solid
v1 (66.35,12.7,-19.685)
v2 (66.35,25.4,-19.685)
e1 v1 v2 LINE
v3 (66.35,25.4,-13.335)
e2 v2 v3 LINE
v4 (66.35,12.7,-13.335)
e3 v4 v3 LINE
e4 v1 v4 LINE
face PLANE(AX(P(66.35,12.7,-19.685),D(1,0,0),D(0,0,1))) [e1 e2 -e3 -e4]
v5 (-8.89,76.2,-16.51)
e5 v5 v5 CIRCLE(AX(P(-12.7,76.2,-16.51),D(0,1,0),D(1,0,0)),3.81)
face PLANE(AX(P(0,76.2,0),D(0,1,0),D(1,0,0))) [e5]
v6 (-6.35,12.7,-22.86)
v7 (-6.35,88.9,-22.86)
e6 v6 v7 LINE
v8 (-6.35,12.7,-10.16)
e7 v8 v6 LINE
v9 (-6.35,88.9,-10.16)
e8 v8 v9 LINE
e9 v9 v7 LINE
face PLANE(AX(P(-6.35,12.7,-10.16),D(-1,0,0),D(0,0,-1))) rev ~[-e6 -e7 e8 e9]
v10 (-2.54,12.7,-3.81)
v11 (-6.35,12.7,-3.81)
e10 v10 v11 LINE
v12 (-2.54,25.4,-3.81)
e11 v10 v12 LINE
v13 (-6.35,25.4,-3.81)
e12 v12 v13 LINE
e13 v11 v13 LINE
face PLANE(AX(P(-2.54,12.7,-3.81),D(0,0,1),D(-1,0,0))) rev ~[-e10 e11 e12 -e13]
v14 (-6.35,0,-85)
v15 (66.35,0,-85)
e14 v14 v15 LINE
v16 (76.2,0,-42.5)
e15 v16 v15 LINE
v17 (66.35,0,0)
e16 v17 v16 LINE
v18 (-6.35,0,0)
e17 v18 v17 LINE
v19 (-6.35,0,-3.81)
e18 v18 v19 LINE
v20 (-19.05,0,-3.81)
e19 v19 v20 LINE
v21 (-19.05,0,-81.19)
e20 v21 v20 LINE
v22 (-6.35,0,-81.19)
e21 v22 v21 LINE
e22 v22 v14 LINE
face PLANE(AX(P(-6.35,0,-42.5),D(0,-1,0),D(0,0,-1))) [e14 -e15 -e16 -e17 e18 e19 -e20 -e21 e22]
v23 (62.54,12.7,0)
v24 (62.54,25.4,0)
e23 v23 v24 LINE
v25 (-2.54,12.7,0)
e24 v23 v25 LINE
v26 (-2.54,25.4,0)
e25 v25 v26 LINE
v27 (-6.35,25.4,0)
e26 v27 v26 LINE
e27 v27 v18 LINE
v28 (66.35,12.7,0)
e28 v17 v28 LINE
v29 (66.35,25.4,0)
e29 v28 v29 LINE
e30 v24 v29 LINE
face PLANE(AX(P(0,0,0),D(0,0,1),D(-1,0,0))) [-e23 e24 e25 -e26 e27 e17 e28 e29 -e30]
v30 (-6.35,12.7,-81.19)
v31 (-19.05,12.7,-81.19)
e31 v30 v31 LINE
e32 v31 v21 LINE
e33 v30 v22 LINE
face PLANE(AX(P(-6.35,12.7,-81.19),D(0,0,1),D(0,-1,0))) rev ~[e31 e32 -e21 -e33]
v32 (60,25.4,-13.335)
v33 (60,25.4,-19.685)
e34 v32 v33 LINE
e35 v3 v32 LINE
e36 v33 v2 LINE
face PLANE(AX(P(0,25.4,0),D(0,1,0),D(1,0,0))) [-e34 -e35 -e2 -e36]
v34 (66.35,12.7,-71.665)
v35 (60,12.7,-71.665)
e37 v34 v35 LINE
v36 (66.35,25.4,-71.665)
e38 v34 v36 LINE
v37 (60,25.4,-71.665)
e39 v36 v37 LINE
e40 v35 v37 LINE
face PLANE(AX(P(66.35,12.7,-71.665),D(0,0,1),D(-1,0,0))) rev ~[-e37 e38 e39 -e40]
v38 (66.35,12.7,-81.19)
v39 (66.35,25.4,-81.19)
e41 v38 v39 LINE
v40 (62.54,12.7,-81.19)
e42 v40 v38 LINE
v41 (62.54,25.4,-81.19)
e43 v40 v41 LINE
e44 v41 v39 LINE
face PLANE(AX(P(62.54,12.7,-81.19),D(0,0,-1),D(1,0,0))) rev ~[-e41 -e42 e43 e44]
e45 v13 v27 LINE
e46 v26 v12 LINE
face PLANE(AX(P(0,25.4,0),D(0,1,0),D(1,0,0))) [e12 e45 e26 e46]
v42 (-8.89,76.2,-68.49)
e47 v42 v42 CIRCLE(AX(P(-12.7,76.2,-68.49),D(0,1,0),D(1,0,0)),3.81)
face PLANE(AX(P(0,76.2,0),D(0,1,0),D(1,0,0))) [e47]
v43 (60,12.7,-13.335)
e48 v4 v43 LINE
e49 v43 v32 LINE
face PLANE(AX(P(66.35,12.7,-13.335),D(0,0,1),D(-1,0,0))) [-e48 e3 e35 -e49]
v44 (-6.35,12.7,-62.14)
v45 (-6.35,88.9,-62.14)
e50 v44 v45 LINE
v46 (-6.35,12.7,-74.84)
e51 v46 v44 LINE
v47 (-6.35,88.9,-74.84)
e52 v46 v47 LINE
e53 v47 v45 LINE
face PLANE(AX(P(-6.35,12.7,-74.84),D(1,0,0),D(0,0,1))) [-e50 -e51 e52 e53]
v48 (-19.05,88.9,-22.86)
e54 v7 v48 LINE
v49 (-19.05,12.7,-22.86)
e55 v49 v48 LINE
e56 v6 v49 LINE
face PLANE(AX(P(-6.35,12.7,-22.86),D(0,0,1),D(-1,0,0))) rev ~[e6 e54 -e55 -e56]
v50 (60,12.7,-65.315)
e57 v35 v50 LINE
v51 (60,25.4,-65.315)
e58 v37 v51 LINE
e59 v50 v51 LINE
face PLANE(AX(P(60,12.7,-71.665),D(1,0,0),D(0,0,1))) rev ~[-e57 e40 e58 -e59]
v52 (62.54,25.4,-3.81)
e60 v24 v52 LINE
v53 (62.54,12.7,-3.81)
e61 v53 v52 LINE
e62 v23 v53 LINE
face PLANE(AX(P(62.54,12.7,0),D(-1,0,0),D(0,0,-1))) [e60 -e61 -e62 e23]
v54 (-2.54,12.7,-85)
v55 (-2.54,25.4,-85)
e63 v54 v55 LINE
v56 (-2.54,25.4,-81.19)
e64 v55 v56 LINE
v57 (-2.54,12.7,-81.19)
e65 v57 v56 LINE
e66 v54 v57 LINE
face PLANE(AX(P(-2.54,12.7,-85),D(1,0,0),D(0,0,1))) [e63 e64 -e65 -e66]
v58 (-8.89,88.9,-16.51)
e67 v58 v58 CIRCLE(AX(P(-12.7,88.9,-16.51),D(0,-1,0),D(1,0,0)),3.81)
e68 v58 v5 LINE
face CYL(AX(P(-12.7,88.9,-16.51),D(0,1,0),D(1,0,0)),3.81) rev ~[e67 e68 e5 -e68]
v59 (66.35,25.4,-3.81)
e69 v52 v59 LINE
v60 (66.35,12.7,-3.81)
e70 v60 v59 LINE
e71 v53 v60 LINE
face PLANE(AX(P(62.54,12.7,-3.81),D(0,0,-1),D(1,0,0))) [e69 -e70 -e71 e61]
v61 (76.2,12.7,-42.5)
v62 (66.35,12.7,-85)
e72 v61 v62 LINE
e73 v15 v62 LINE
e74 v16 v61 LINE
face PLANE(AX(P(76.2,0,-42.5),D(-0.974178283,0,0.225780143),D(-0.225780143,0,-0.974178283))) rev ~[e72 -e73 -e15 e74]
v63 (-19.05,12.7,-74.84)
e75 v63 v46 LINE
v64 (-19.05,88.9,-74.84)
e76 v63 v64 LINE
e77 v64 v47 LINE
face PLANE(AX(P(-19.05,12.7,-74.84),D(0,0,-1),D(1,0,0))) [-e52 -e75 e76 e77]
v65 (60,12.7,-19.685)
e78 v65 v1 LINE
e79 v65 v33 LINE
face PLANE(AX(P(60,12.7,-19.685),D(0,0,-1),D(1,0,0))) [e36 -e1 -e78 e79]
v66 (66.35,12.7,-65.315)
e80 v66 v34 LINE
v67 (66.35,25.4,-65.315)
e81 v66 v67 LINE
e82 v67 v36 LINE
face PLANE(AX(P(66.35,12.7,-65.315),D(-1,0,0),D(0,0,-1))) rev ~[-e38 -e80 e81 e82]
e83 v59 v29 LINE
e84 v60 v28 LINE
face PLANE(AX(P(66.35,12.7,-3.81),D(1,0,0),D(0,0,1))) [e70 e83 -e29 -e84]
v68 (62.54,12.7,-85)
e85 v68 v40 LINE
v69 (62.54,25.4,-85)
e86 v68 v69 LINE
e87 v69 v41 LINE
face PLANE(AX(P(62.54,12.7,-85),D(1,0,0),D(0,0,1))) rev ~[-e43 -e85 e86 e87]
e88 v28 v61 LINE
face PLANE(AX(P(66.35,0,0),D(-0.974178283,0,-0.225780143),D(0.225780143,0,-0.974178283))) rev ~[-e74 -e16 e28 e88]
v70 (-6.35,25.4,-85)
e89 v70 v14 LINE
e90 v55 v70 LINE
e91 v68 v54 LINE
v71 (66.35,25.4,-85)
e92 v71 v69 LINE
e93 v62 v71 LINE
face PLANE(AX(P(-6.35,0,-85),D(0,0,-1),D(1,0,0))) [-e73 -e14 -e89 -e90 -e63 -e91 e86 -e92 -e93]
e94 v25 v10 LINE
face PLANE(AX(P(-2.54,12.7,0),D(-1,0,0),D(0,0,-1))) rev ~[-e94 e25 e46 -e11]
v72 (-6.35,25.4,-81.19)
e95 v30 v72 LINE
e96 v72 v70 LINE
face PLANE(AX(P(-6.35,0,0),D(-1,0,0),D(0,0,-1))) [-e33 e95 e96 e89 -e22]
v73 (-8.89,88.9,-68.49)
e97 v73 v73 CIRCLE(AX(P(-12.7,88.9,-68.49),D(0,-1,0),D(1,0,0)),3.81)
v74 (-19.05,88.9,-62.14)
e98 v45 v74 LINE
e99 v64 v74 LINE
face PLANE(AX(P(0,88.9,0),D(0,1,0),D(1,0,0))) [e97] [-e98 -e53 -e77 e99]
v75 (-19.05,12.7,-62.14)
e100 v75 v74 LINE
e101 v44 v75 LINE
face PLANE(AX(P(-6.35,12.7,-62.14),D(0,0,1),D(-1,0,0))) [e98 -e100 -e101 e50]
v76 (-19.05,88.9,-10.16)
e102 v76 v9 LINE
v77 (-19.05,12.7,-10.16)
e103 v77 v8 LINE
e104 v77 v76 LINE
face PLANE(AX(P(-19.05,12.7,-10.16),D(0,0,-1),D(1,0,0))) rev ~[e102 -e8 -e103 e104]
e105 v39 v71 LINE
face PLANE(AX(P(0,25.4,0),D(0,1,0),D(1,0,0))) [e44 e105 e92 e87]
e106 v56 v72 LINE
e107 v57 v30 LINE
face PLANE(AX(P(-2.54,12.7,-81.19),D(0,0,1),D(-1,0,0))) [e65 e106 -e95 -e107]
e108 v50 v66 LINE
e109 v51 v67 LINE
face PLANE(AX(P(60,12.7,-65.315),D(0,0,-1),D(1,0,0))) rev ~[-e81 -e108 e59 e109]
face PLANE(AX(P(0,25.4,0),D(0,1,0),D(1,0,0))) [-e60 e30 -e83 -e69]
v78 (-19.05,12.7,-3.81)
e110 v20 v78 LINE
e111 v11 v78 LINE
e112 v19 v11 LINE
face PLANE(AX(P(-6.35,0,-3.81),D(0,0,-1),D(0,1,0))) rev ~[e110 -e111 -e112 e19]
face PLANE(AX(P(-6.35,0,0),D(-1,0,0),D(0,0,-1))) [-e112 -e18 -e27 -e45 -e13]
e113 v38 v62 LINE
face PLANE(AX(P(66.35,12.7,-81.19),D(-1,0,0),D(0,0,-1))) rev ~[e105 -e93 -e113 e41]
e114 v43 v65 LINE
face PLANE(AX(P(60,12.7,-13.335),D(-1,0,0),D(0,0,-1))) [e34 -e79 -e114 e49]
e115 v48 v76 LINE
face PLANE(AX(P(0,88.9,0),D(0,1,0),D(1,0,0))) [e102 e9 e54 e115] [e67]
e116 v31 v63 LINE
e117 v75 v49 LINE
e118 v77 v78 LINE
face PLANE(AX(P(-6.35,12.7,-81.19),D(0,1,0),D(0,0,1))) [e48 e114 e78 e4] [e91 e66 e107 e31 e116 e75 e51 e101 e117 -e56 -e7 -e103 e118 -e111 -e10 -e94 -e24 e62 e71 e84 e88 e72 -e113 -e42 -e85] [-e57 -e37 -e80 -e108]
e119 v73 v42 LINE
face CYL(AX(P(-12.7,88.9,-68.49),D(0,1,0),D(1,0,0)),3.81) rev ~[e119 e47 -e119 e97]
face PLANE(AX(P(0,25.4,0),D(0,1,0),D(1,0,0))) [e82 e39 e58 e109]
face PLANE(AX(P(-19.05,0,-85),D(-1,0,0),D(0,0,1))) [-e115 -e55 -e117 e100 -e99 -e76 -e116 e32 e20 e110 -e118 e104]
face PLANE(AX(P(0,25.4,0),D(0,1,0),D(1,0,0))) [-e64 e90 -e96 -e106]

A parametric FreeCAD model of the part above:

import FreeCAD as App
import Part
import Sketcher
Q = App.Units.Quantity

doc = App.newDocument("Part")
body = doc.addObject("PartDesign::Body", "Body")

# Sketch on XZ plane
sketch1 = body.newObject("Sketcher::SketchObject", "Sketch")
sketch1.AttachmentSupport = (doc.getObject("XZ_Plane"), [""])
sketch1.MapMode = "FlatFace"
sketch1.addGeometry([
    Part.LineSegment(App.Vector(-6, 0, 0), App.Vector(66, 0, 0)),  # 0
    Part.LineSegment(App.Vector(66, 0, 0), App.Vector(76, -42, 0)),  # 1
    Part.LineSegment(App.Vector(76, -42, 0), App.Vector(66, -85, 0)),  # 2
    Part.LineSegment(App.Vector(66, -85, 0), App.Vector(-6, -85, 0)),  # 3
    Part.LineSegment(App.Vector(-6, -85, 0), App.Vector(-6, 0, 0)),  # 4
], False)
sketch1.addConstraint([
    Sketcher.Constraint("Coincident", 0, 2, 1, 1),
    Sketcher.Constraint("Coincident", 1, 2, 2, 1),
    Sketcher.Constraint("Coincident", 2, 2, 3, 1),
    Sketcher.Constraint("Coincident", 3, 2, 4, 1),
    Sketcher.Constraint("Coincident", 4, 2, 0, 1),
    Sketcher.Constraint("Horizontal", 0),
    Sketcher.Constraint("Horizontal", 3),
    Sketcher.Constraint("Vertical", 4),
    Sketcher.Constraint("PointOnObject", 0, 2, -1),
    Sketcher.Constraint("Vertical", 0, 2, 2, 2),
    Sketcher.Constraint("Equal", 1, 2),
    Sketcher.Constraint("DistanceX", -1, 1, 1, 2, Q("3 in")),
    Sketcher.Constraint("DistanceX", 3, 2, -1, 1, Q("0.25 in")),
    Sketcher.Constraint("DistanceY", 4, 1, 4, 2, 85.0),
    Sketcher.Constraint("DistanceX", 0, 1, 0, 2, Q("2.8622 in")),
])
pad1 = body.newObject("PartDesign::Pad", "Pad")
pad1.Profile = sketch1
pad1.Length = Q("0.5 in")
pad1.Reversed = True

# Sketch on XZ plane
sketch2 = body.newObject("Sketcher::SketchObject", "Sketch001")
sketch2.AttachmentSupport = (doc.getObject("XZ_Plane"), [""])
sketch2.MapMode = "FlatFace"
sketch2.AttachmentOffset = App.Placement(App.Vector(0, 0, -0.5 * 25.4), App.Rotation())
sketch2.addGeometry([
    Part.LineSegment(App.Vector(-6.3, -3.8, 0), App.Vector(-6.3, 0, 0)),  # 0
    Part.LineSegment(App.Vector(-6.3, 0, 0), App.Vector(-2.5, 0, 0)),  # 1
    Part.LineSegment(App.Vector(-2.5, 0, 0), App.Vector(-2.5, -3.8, 0)),  # 2
    Part.LineSegment(App.Vector(-2.5, -3.8, 0), App.Vector(-6.3, -3.8, 0)),  # 3
    Part.LineSegment(App.Vector(62.5, -3.8, 0), App.Vector(62.5, 0, 0)),  # 4
    Part.LineSegment(App.Vector(62.5, 0, 0), App.Vector(66.3, 0, 0)),  # 5
    Part.LineSegment(App.Vector(66.3, 0, 0), App.Vector(66.3, -3.8, 0)),  # 6
    Part.LineSegment(App.Vector(66.3, -3.8, 0), App.Vector(62.5, -3.8, 0)),  # 7
    Part.LineSegment(App.Vector(66.3, -81.2, 0), App.Vector(66.3, -85, 0)),  # 8
    Part.LineSegment(App.Vector(66.3, -85, 0), App.Vector(62.5, -85, 0)),  # 9
    Part.LineSegment(App.Vector(62.5, -85, 0), App.Vector(62.5, -81.2, 0)),  # 10
    Part.LineSegment(App.Vector(62.5, -81.2, 0), App.Vector(66.3, -81.2, 0)),  # 11
    Part.LineSegment(App.Vector(-2.5, -81.2, 0), App.Vector(-2.5, -85, 0)),  # 12
    Part.LineSegment(App.Vector(-2.5, -85, 0), App.Vector(-6.3, -85, 0)),  # 13
    Part.LineSegment(App.Vector(-6.3, -85, 0), App.Vector(-6.3, -81.2, 0)),  # 14
    Part.LineSegment(App.Vector(-6.3, -81.2, 0), App.Vector(-2.5, -81.2, 0)),  # 15
], False)
sketch2.addConstraint([
    Sketcher.Constraint("Coincident", 0, 2, 1, 1),
    Sketcher.Constraint("Coincident", 1, 2, 2, 1),
    Sketcher.Constraint("Coincident", 2, 2, 3, 1),
    Sketcher.Constraint("Coincident", 3, 2, 0, 1),
    Sketcher.Constraint("Coincident", 4, 2, 5, 1),
    Sketcher.Constraint("Coincident", 5, 2, 6, 1),
    Sketcher.Constraint("Coincident", 6, 2, 7, 1),
    Sketcher.Constraint("Coincident", 7, 2, 4, 1),
    Sketcher.Constraint("Coincident", 8, 2, 9, 1),
    Sketcher.Constraint("Coincident", 9, 2, 10, 1),
    Sketcher.Constraint("Coincident", 10, 2, 11, 1),
    Sketcher.Constraint("Coincident", 11, 2, 8, 1),
    Sketcher.Constraint("Coincident", 12, 2, 13, 1),
    Sketcher.Constraint("Coincident", 13, 2, 14, 1),
    Sketcher.Constraint("Coincident", 14, 2, 15, 1),
    Sketcher.Constraint("Coincident", 15, 2, 12, 1),
    Sketcher.Constraint("Vertical", 0),
    Sketcher.Constraint("Horizontal", 1),
    Sketcher.Constraint("Vertical", 2),
    Sketcher.Constraint("Horizontal", 3),
    Sketcher.Constraint("Vertical", 4),
    Sketcher.Constraint("Horizontal", 5),
    Sketcher.Constraint("Vertical", 6),
    Sketcher.Constraint("Horizontal", 7),
    Sketcher.Constraint("Vertical", 8),
    Sketcher.Constraint("Horizontal", 9),
    Sketcher.Constraint("Vertical", 10),
    Sketcher.Constraint("Horizontal", 11),
    Sketcher.Constraint("Vertical", 12),
    Sketcher.Constraint("Horizontal", 13),
    Sketcher.Constraint("Vertical", 14),
    Sketcher.Constraint("Horizontal", 15),
    Sketcher.Constraint("PointOnObject", 0, 2, -1),
    Sketcher.Constraint("PointOnObject", 4, 2, -1),
    Sketcher.Constraint("Horizontal", 3, 2, 6, 2),
    Sketcher.Constraint("Horizontal", 9, 2, 12, 2),
    Sketcher.Constraint("Horizontal", 11, 2, 14, 2),
    Sketcher.Constraint("Vertical", 6, 2, 8, 2),
    Sketcher.Constraint("Vertical", 7, 2, 9, 2),
    Sketcher.Constraint("Vertical", 2, 2, 12, 2),
    Sketcher.Constraint("Vertical", 3, 2, 13, 2),
    Sketcher.Constraint("Equal", 3, 5),
    Sketcher.Constraint("Equal", 15, 0),
    Sketcher.Constraint("Equal", 6, 8),
    Sketcher.Constraint("DistanceX", 1, 1, 1, 2, Q("0.15 in")),
    Sketcher.Constraint("DistanceX", 1, 2, -1, 1, Q("0.1 in")),
    Sketcher.Constraint("DistanceX", -1, 1, 4, 2, Q("2.4622 in")),
    Sketcher.Constraint("DistanceY", 8, 2, -1, 1, 85.0),
])
pad2 = body.newObject("PartDesign::Pad", "Pad001")
pad2.Profile = sketch2
pad2.Length = Q("0.5 in")
pad2.Reversed = True

# Sketch on YZ plane
sketch3 = body.newObject("Sketcher::SketchObject", "Sketch002")
sketch3.AttachmentSupport = (doc.getObject("YZ_Plane"), [""])
sketch3.MapMode = "FlatFace"
sketch3.AttachmentOffset = App.Placement(App.Vector(0, 0, -0.25 * 25.4), App.Rotation())
sketch3.addGeometry([
    Part.LineSegment(App.Vector(13, -4, 0), App.Vector(13, -81, 0)),
    Part.LineSegment(App.Vector(13, -81, 0), App.Vector(0, -81, 0)),
    Part.LineSegment(App.Vector(0, -81, 0), App.Vector(0, -4, 0)),
    Part.LineSegment(App.Vector(0, -4, 0), App.Vector(13, -4, 0)),
], False)
sketch3.addConstraint([
    Sketcher.Constraint("Coincident", 0, 2, 1, 1),
    Sketcher.Constraint("Coincident", 1, 2, 2, 1),
    Sketcher.Constraint("Coincident", 2, 2, 3, 1),
    Sketcher.Constraint("Coincident", 3, 2, 0, 1),
    Sketcher.Constraint("Vertical", 0),
    Sketcher.Constraint("Horizontal", 1),
    Sketcher.Constraint("Vertical", 2),
    Sketcher.Constraint("Horizontal", 3),
    Sketcher.Constraint("PointOnObject", 1, 2, -2),
    Sketcher.Constraint("DistanceX", 1, 2, 1, 1, Q("0.5 in")),
    Sketcher.Constraint("DistanceY", 2, 2, -1, 1, Q("0.15 in")),
    Sketcher.Constraint("DistanceY", 0, 2, 0, 1, 77.38),
])
pad3 = body.newObject("PartDesign::Pad", "Pad002")
pad3.Profile = sketch3
pad3.Length = Q("0.5 in")
pad3.Reversed = True

# Sketch on XZ plane
sketch4 = body.newObject("Sketcher::SketchObject", "Sketch003")
sketch4.AttachmentSupport = (doc.getObject("XZ_Plane"), [""])
sketch4.MapMode = "FlatFace"
sketch4.AttachmentOffset = App.Placement(App.Vector(0, 0, -0.5 * 25.4), App.Rotation())
sketch4.addGeometry([
    Part.LineSegment(App.Vector(-6, -75, 0), App.Vector(-19, -75, 0)),  # 0
    Part.LineSegment(App.Vector(-19, -75, 0), App.Vector(-19, -62, 0)),  # 1
    Part.LineSegment(App.Vector(-19, -62, 0), App.Vector(-6, -62, 0)),  # 2
    Part.LineSegment(App.Vector(-6, -62, 0), App.Vector(-6, -75, 0)),  # 3
    Part.LineSegment(App.Vector(-6, -23, 0), App.Vector(-19, -23, 0)),  # 4
    Part.LineSegment(App.Vector(-19, -23, 0), App.Vector(-19, -10, 0)),  # 5
    Part.LineSegment(App.Vector(-19, -10, 0), App.Vector(-6, -10, 0)),  # 6
    Part.LineSegment(App.Vector(-6, -10, 0), App.Vector(-6, -23, 0)),  # 7
], False)
sketch4.addConstraint([
    Sketcher.Constraint("Coincident", 0, 2, 1, 1),
    Sketcher.Constraint("Coincident", 1, 2, 2, 1),
    Sketcher.Constraint("Coincident", 2, 2, 3, 1),
    Sketcher.Constraint("Coincident", 3, 2, 0, 1),
    Sketcher.Constraint("Coincident", 4, 2, 5, 1),
    Sketcher.Constraint("Coincident", 5, 2, 6, 1),
    Sketcher.Constraint("Coincident", 6, 2, 7, 1),
    Sketcher.Constraint("Coincident", 7, 2, 4, 1),
    Sketcher.Constraint("Horizontal", 0),
    Sketcher.Constraint("Vertical", 1),
    Sketcher.Constraint("Horizontal", 2),
    Sketcher.Constraint("Vertical", 3),
    Sketcher.Constraint("Horizontal", 4),
    Sketcher.Constraint("Vertical", 5),
    Sketcher.Constraint("Horizontal", 6),
    Sketcher.Constraint("Vertical", 7),
    Sketcher.Constraint("Vertical", 1, 2, 4, 2),
    Sketcher.Constraint("Vertical", 3, 2, 6, 2),
    Sketcher.Constraint("Equal", 6, 1),
    Sketcher.Constraint("Equal", 3, 5),
    Sketcher.Constraint("DistanceX", 0, 2, 0, 1, Q("0.5 in")),
    Sketcher.Constraint("DistanceX", 2, 2, -1, 1, Q("0.25 in")),
    Sketcher.Constraint("DistanceY", 4, 2, -1, 1, Q("0.9 in")),
    Sketcher.Constraint("DistanceY", 0, 2, -1, 1, 74.84),
])
pad4 = body.newObject("PartDesign::Pad", "Pad003")
pad4.Profile = sketch4
pad4.Length = Q("3 in")
pad4.Reversed = True

# Sketch on XZ plane
sketch5 = body.newObject("Sketcher::SketchObject", "Sketch004")
sketch5.AttachmentSupport = (doc.getObject("XZ_Plane"), [""])
sketch5.MapMode = "FlatFace"
sketch5.AttachmentOffset = App.Placement(App.Vector(0, 0, -3.5 * 25.4), App.Rotation())
sketch5.addGeometry([
    Part.Circle(App.Vector(-12.7, -16.5, 0), App.Vector(0, 0, 1), 3.8),
    Part.Circle(App.Vector(-12.7, -68.5, 0), App.Vector(0, 0, 1), 3.8),
], False)
sketch5.addConstraint([
    Sketcher.Constraint("Equal", 0, 1),
    Sketcher.Constraint("Vertical", 0, 3, 1, 3),
    Sketcher.Constraint("Diameter", 0, Q("0.3 in")),
    Sketcher.Constraint("DistanceX", 0, 3, -1, 1, Q("0.5 in")),
    Sketcher.Constraint("DistanceY", 0, 3, -1, 1, Q("0.65 in")),
    Sketcher.Constraint("DistanceY", 1, 3, -1, 1, 68.49),
])
pocket1 = body.newObject("PartDesign::Pocket", "Pocket")
pocket1.Profile = sketch5
pocket1.Length = Q("0.5 in")
pocket1.Reversed = True

# Sketch on XZ plane
sketch6 = body.newObject("Sketcher::SketchObject", "Sketch005")
sketch6.AttachmentSupport = (doc.getObject("XZ_Plane"), [""])
sketch6.MapMode = "FlatFace"
sketch6.AttachmentOffset = App.Placement(App.Vector(0, 0, -0.5 * 25.4), App.Rotation())
sketch6.addGeometry([
    Part.LineSegment(App.Vector(60, -13, 0), App.Vector(66, -13, 0)),  # 0
    Part.LineSegment(App.Vector(66, -13, 0), App.Vector(66, -20, 0)),  # 1
    Part.LineSegment(App.Vector(66, -20, 0), App.Vector(60, -20, 0)),  # 2
    Part.LineSegment(App.Vector(60, -20, 0), App.Vector(60, -13, 0)),  # 3
    Part.LineSegment(App.Vector(66, -65, 0), App.Vector(66, -72, 0)),  # 4
    Part.LineSegment(App.Vector(66, -72, 0), App.Vector(60, -72, 0)),  # 5
    Part.LineSegment(App.Vector(60, -72, 0), App.Vector(60, -65, 0)),  # 6
    Part.LineSegment(App.Vector(60, -65, 0), App.Vector(66, -65, 0)),  # 7
], False)
sketch6.addConstraint([
    Sketcher.Constraint("Coincident", 0, 2, 1, 1),
    Sketcher.Constraint("Coincident", 1, 2, 2, 1),
    Sketcher.Constraint("Coincident", 2, 2, 3, 1),
    Sketcher.Constraint("Coincident", 3, 2, 0, 1),
    Sketcher.Constraint("Coincident", 4, 2, 5, 1),
    Sketcher.Constraint("Coincident", 5, 2, 6, 1),
    Sketcher.Constraint("Coincident", 6, 2, 7, 1),
    Sketcher.Constraint("Coincident", 7, 2, 4, 1),
    Sketcher.Constraint("Horizontal", 0),
    Sketcher.Constraint("Vertical", 1),
    Sketcher.Constraint("Horizontal", 2),
    Sketcher.Constraint("Vertical", 3),
    Sketcher.Constraint("Vertical", 4),
    Sketcher.Constraint("Horizontal", 5),
    Sketcher.Constraint("Vertical", 6),
    Sketcher.Constraint("Horizontal", 7),
    Sketcher.Constraint("Vertical", 1, 2, 4, 2),
    Sketcher.Constraint("Vertical", 3, 2, 5, 2),
    Sketcher.Constraint("Equal", 7, 1),
    Sketcher.Constraint("Equal", 3, 4),
    Sketcher.Constraint("DistanceX", 0, 1, 0, 2, Q("0.25 in")),
    Sketcher.Constraint("DistanceY", 0, 2, -1, 1, Q("0.525 in")),
    Sketcher.Constraint("DistanceX", -1, 1, 0, 2, Q("2.6122 in")),
    Sketcher.Constraint("DistanceY", 4, 2, -1, 1, 71.665),
])
pad5 = body.newObject("PartDesign::Pad", "Pad004")
pad5.Profile = sketch6
pad5.Length = Q("0.5 in")
pad5.Reversed = True

doc.recompute()
